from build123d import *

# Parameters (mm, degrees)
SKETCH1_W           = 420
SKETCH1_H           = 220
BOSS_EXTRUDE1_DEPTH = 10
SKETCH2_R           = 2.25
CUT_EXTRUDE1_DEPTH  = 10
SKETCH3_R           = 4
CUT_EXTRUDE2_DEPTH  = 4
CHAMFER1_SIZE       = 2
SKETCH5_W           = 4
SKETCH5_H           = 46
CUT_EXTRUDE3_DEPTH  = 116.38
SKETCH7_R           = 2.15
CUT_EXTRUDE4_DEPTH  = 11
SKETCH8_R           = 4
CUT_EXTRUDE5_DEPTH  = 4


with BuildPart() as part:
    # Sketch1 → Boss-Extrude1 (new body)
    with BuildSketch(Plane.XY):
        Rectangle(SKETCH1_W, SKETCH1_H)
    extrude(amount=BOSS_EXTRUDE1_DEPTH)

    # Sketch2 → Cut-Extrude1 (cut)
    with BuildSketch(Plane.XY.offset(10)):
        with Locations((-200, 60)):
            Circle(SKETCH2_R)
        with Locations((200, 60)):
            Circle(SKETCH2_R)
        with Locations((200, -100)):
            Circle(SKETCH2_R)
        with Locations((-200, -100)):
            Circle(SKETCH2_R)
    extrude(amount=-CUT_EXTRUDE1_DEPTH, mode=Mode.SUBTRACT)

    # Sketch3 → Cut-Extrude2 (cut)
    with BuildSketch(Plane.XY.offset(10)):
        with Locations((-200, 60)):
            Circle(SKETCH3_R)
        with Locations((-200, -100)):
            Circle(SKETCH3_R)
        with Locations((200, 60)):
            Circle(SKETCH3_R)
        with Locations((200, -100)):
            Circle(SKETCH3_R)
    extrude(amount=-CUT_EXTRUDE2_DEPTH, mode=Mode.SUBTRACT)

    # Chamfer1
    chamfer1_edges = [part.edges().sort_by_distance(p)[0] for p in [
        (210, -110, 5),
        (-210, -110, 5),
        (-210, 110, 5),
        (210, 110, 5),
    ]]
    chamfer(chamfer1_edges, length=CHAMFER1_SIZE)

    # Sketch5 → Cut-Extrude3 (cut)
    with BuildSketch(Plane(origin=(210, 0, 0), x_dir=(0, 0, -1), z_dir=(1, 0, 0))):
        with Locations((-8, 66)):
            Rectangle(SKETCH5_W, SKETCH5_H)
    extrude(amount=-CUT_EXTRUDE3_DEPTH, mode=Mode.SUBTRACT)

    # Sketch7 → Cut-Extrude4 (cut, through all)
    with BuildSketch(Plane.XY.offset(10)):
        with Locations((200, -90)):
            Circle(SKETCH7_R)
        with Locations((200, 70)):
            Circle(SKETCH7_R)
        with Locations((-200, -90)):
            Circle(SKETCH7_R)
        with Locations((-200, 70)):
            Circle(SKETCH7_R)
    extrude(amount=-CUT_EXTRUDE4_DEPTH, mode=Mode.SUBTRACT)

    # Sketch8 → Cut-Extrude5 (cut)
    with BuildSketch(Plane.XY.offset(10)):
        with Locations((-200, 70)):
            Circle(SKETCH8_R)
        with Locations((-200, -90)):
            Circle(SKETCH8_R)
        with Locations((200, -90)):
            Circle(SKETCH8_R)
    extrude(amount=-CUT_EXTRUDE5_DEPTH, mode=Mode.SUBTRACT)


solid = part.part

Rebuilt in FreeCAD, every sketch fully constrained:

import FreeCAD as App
import Part
import Sketcher
Q = App.Units.Quantity


def edges_at(feature, points):
    """Names of the edges that pass closest to the given points."""
    edges = feature.Shape.Edges
    near = lambda p: min(range(len(edges)), key=lambda i: edges[i].distToShape(Part.Vertex(*p))[0])
    return sorted({f"Edge{near(p) + 1}" for p in points})

doc = App.newDocument("Part")
body = doc.addObject("PartDesign::Body", "Body")

sketch1 = doc.addObject("Sketcher::SketchObject", "Sketch")
body.addObject(sketch1)
sketch1.AttachmentSupport = (doc.XY_Plane, [""])
sketch1.MapMode = "FlatFace"
sketch1.addGeometry([
    Part.LineSegment(App.Vector(-210, 110, 0), App.Vector(-210, -110, 0)),
    Part.LineSegment(App.Vector(-210, -110, 0), App.Vector(210, -110, 0)),
    Part.LineSegment(App.Vector(210, -110, 0), App.Vector(210, 110, 0)),
    Part.LineSegment(App.Vector(210, 110, 0), App.Vector(-210, 110, 0)),
], False)
sketch1.addConstraint([
    Sketcher.Constraint("Coincident", 0, 2, 1, 1),
    Sketcher.Constraint("Coincident", 1, 2, 2, 1),
    Sketcher.Constraint("Coincident", 2, 2, 3, 1),
    Sketcher.Constraint("Coincident", 3, 2, 0, 1),
    Sketcher.Constraint("Vertical", 0),
    Sketcher.Constraint("Horizontal", 1),
    Sketcher.Constraint("Vertical", 2),
    Sketcher.Constraint("Horizontal", 3),
    Sketcher.Constraint("Symmetric", 0, 2, 2, 2, -1, 1),
    Sketcher.Constraint("DistanceX", 1, 1, 1, 2, Q("420 mm")),
    Sketcher.Constraint("DistanceY", 0, 2, 0, 1, Q("220 mm")),
])
pad1 = doc.addObject("PartDesign::Pad", "Pad")
body.addObject(pad1)
pad1.Profile = sketch1
pad1.Length = 10

sketch2 = doc.addObject("Sketcher::SketchObject", "Sketch001")
body.addObject(sketch2)
sketch2.AttachmentSupport = (doc.XY_Plane, [""])
sketch2.MapMode = "FlatFace"
sketch2.AttachmentOffset = App.Placement(App.Vector(0, 0, 10), App.Rotation())
sketch2.addGeometry([
    Part.Circle(App.Vector(-200, 60, 0), App.Vector(0, 0, 1), 2.2),
    Part.Circle(App.Vector(200, 60, 0), App.Vector(0, 0, 1), 2.2),
    Part.Circle(App.Vector(200, -100, 0), App.Vector(0, 0, 1), 2.2),
    Part.Circle(App.Vector(-200, -100, 0), App.Vector(0, 0, 1), 2.2),
], False)
sketch2.addConstraint([
    Sketcher.Constraint("Equal", 0, 1),
    Sketcher.Constraint("Equal", 1, 2),
    Sketcher.Constraint("Equal", 2, 3),
    Sketcher.Constraint("Symmetric", 0, 3, 1, 3, -2),
    Sketcher.Constraint("Symmetric", 2, 3, 3, 3, -2),
    Sketcher.Constraint("Vertical", 1, 3, 2, 3),
    Sketcher.Constraint("Diameter", 0, Q("4.5 mm")),
    Sketcher.Constraint("DistanceX", 0, 3, -1, 1, Q("200 mm")),
    Sketcher.Constraint("DistanceY", -1, 1, 0, 3, Q("60 mm")),
    Sketcher.Constraint("DistanceY", 2, 3, -1, 1, Q("100 mm")),
])
pocket1 = doc.addObject("PartDesign::Pocket", "Pocket")
body.addObject(pocket1)
pocket1.Profile = sketch2
pocket1.Length = 10

sketch3 = doc.addObject("Sketcher::SketchObject", "Sketch002")
body.addObject(sketch3)
sketch3.AttachmentSupport = (doc.XY_Plane, [""])
sketch3.MapMode = "FlatFace"
sketch3.AttachmentOffset = App.Placement(App.Vector(0, 0, 10), App.Rotation())
sketch3.addGeometry([
    Part.Circle(App.Vector(-200, 60, 0), App.Vector(0, 0, 1), 4),
    Part.Circle(App.Vector(-200, -100, 0), App.Vector(0, 0, 1), 4),
    Part.Circle(App.Vector(200, 60, 0), App.Vector(0, 0, 1), 4),
    Part.Circle(App.Vector(200, -100, 0), App.Vector(0, 0, 1), 4),
], False)
sketch3.addConstraint([
    Sketcher.Constraint("Equal", 0, 1),
    Sketcher.Constraint("Equal", 1, 2),
    Sketcher.Constraint("Equal", 2, 3),
    Sketcher.Constraint("Symmetric", 0, 3, 2, 3, -2),
    Sketcher.Constraint("Symmetric", 1, 3, 3, 3, -2),
    Sketcher.Constraint("Vertical", 0, 3, 1, 3),
    Sketcher.Constraint("Diameter", 0, Q("8 mm")),
    Sketcher.Constraint("DistanceX", 0, 3, -1, 1, Q("200 mm")),
    Sketcher.Constraint("DistanceY", -1, 1, 0, 3, Q("60 mm")),
    Sketcher.Constraint("DistanceY", 1, 3, -1, 1, Q("100 mm")),
])
pocket2 = doc.addObject("PartDesign::Pocket", "Pocket001")
body.addObject(pocket2)
pocket2.Profile = sketch3
pocket2.Length = 4
doc.recompute()

chamfer = doc.addObject("PartDesign::Chamfer", "Chamfer")
body.addObject(chamfer)
chamfer.Base = (pocket2, edges_at(pocket2, [
    (210, -110, 5),
    (-210, -110, 5),
    (-210, 110, 5),
    (210, 110, 5),
]))
chamfer.Size = 2

sketch4 = doc.addObject("Sketcher::SketchObject", "Sketch003")
body.addObject(sketch4)
sketch4.AttachmentSupport = (doc.YZ_Plane, [""])
sketch4.MapMode = "FlatFace"
sketch4.AttachmentOffset = App.Placement(App.Vector(0, 0, 210), App.Rotation())
sketch4.addGeometry([
    Part.LineSegment(App.Vector(89, 10, 0), App.Vector(43, 10, 0)),
    Part.LineSegment(App.Vector(43, 10, 0), App.Vector(43, 6, 0)),
    Part.LineSegment(App.Vector(43, 6, 0), App.Vector(89, 6, 0)),
    Part.LineSegment(App.Vector(89, 6, 0), App.Vector(89, 10, 0)),
], False)
sketch4.addConstraint([
    Sketcher.Constraint("Coincident", 0, 2, 1, 1),
    Sketcher.Constraint("Coincident", 1, 2, 2, 1),
    Sketcher.Constraint("Coincident", 2, 2, 3, 1),
    Sketcher.Constraint("Coincident", 3, 2, 0, 1),
    Sketcher.Constraint("Horizontal", 0),
    Sketcher.Constraint("Vertical", 1),
    Sketcher.Constraint("Horizontal", 2),
    Sketcher.Constraint("Vertical", 3),
    Sketcher.Constraint("DistanceX", 0, 2, 0, 1, Q("46 mm")),
    Sketcher.Constraint("DistanceY", 1, 2, 1, 1, Q("4 mm")),
    Sketcher.Constraint("DistanceX", -1, 1, 0, 2, Q("43 mm")),
    Sketcher.Constraint("DistanceY", -1, 1, 0, 2, Q("10 mm")),
])
pocket3 = doc.addObject("PartDesign::Pocket", "Pocket002")
body.addObject(pocket3)
pocket3.Profile = sketch4
pocket3.Length = 116.38

sketch5 = doc.addObject("Sketcher::SketchObject", "Sketch004")
body.addObject(sketch5)
sketch5.AttachmentSupport = (doc.XY_Plane, [""])
sketch5.MapMode = "FlatFace"
sketch5.AttachmentOffset = App.Placement(App.Vector(0, 0, 10), App.Rotation())
sketch5.addGeometry([
    Part.Circle(App.Vector(200, -90, 0), App.Vector(0, 0, 1), 2.1),
    Part.Circle(App.Vector(200, 70, 0), App.Vector(0, 0, 1), 2.1),
    Part.Circle(App.Vector(-200, -90, 0), App.Vector(0, 0, 1), 2.1),
    Part.Circle(App.Vector(-200, 70, 0), App.Vector(0, 0, 1), 2.1),
], False)
sketch5.addConstraint([
    Sketcher.Constraint("Equal", 0, 1),
    Sketcher.Constraint("Equal", 1, 2),
    Sketcher.Constraint("Equal", 2, 3),
    Sketcher.Constraint("Symmetric", 0, 3, 2, 3, -2),
    Sketcher.Constraint("Symmetric", 1, 3, 3, 3, -2),
    Sketcher.Constraint("Vertical", 0, 3, 1, 3),
    Sketcher.Constraint("Diameter", 0, Q("4.3 mm")),
    Sketcher.Constraint("DistanceX", -1, 1, 0, 3, Q("200 mm")),
    Sketcher.Constraint("DistanceY", 0, 3, -1, 1, Q("90 mm")),
    Sketcher.Constraint("DistanceY", -1, 1, 1, 3, Q("70 mm")),
])
pocket4 = doc.addObject("PartDesign::Pocket", "Pocket003")
body.addObject(pocket4)
pocket4.Profile = sketch5
pocket4.Type = "ThroughAll"

sketch6 = doc.addObject("Sketcher::SketchObject", "Sketch005")
body.addObject(sketch6)
sketch6.AttachmentSupport = (doc.XY_Plane, [""])
sketch6.MapMode = "FlatFace"
sketch6.AttachmentOffset = App.Placement(App.Vector(0, 0, 10), App.Rotation())
sketch6.addGeometry([
    Part.Circle(App.Vector(-200, 70, 0), App.Vector(0, 0, 1), 4),
    Part.Circle(App.Vector(-200, -90, 0), App.Vector(0, 0, 1), 4),
    Part.Circle(App.Vector(200, -90, 0), App.Vector(0, 0, 1), 4),
], False)
sketch6.addConstraint([
    Sketcher.Constraint("Equal", 0, 1),
    Sketcher.Constraint("Equal", 1, 2),
    Sketcher.Constraint("Symmetric", 1, 3, 2, 3, -2),
    Sketcher.Constraint("Vertical", 0, 3, 1, 3),
    Sketcher.Constraint("Diameter", 0, Q("8 mm")),
    Sketcher.Constraint("DistanceX", 0, 3, -1, 1, Q("200 mm")),
    Sketcher.Constraint("DistanceY", -1, 1, 0, 3, Q("70 mm")),
    Sketcher.Constraint("DistanceY", 1, 3, -1, 1, Q("90 mm")),
])
pocket5 = doc.addObject("PartDesign::Pocket", "Pocket004")
body.addObject(pocket5)
pocket5.Profile = sketch6
pocket5.Length = 4

doc.recompute()
